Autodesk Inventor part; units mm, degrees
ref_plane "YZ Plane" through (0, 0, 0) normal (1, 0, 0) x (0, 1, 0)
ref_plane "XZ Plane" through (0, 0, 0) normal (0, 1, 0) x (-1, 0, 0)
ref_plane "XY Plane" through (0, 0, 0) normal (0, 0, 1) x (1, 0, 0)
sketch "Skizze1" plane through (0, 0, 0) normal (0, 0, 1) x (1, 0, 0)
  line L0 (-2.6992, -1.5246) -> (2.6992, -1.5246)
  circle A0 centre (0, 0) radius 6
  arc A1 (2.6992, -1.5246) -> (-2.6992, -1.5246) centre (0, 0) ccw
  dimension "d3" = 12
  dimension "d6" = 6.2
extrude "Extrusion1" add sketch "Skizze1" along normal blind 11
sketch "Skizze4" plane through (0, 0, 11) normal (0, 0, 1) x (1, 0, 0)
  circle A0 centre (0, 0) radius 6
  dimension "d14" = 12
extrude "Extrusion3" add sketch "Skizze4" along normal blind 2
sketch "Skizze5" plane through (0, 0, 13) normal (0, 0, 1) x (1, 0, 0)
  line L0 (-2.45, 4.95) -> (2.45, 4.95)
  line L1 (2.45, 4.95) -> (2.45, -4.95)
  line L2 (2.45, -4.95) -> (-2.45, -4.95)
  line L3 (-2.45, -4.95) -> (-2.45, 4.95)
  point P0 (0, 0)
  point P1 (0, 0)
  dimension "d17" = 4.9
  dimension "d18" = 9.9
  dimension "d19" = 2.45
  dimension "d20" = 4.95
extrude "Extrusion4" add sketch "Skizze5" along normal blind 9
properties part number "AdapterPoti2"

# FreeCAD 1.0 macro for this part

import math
import FreeCAD as App
import Part
import Sketcher
from FreeCAD import Vector
Q = App.Units.Quantity


def add_polygon(sketch, points):
    """Adds a closed chain of lines whose ends are joined by coincident constraints."""
    first, n = sketch.GeometryCount, len(points)
    for a, b in zip(points, points[1:] + points[:1]):
        sketch.addGeometry(Part.LineSegment(App.Vector(*a, 0), App.Vector(*b, 0)), False)
    for i in range(n):
        sketch.addConstraint(Sketcher.Constraint("Coincident", first + i, 2, first + (i + 1) % n, 1))

doc = App.newDocument("Part")
body = doc.addObject("PartDesign::Body", "Body")

# Sketch on XY plane
sketch1 = body.newObject("Sketcher::SketchObject", "Sketch")
sketch1.AttachmentSupport = (doc.getObject("XY_Plane"), [""])
sketch1.MapMode = "FlatFace"
sketch1.addGeometry(Part.Circle(Vector(0, 0, 0), Vector(0, 0, 1), 6), False)
sketch1.addGeometry(Part.LineSegment(Vector(2.7, -1.5, 0), Vector(-2.7, -1.5, 0)), False)
sketch1.addGeometry(Part.ArcOfCircle(Part.Circle(Vector(0, 0, 0), Vector(0, 0, 1), 3.1), math.radians(-29), math.radians(209)), False)
sketch1.addConstraint(Sketcher.Constraint("Coincident", 1, 1, 2, 1))
sketch1.addConstraint(Sketcher.Constraint("Coincident", 2, 2, 1, 2))
sketch1.addConstraint(Sketcher.Constraint("Horizontal", 1))
sketch1.addConstraint(Sketcher.Constraint("Coincident", 0, 3, -1, 1))
sketch1.addConstraint(Sketcher.Constraint("Coincident", 2, 3, -1, 1))
sketch1.addConstraint(Sketcher.Constraint("Diameter", 0, Q("12 mm")))
sketch1.addConstraint(Sketcher.Constraint("Radius", 2, Q("3.1 mm")))
sketch1.addConstraint(Sketcher.Constraint("DistanceX", 1, 2, 1, 1, Q("5.3984 mm")))
pad1 = body.newObject("PartDesign::Pad", "Pad")
pad1.Profile = sketch1
pad1.Length = 11

# Sketch on XY plane
sketch2 = body.newObject("Sketcher::SketchObject", "Sketch001")
sketch2.AttachmentSupport = (doc.getObject("XY_Plane"), [""])
sketch2.MapMode = "FlatFace"
sketch2.AttachmentOffset = App.Placement(Vector(0, 0, 11), App.Rotation())
sketch2.addGeometry(Part.Circle(Vector(0, 0, 0), Vector(0, 0, 1), 6), False)
sketch2.addConstraint(Sketcher.Constraint("Coincident", 0, 3, -1, 1))
sketch2.addConstraint(Sketcher.Constraint("Diameter", 0, Q("12 mm")))
pad2 = body.newObject("PartDesign::Pad", "Pad001")
pad2.Profile = sketch2
pad2.Length = 2

# Sketch on XY plane
sketch3 = body.newObject("Sketcher::SketchObject", "Sketch002")
sketch3.AttachmentSupport = (doc.getObject("XY_Plane"), [""])
sketch3.MapMode = "FlatFace"
sketch3.AttachmentOffset = App.Placement(Vector(0, 0, 13), App.Rotation())
add_polygon(sketch3, [(2.5, 5), (-2.5, 5), (-2.5, -5), (2.5, -5)])  # lines 0-3
sketch3.addConstraint(Sketcher.Constraint("Horizontal", 0))
sketch3.addConstraint(Sketcher.Constraint("Vertical", 1))
sketch3.addConstraint(Sketcher.Constraint("Horizontal", 2))
sketch3.addConstraint(Sketcher.Constraint("Vertical", 3))
sketch3.addConstraint(Sketcher.Constraint("Symmetric", 0, 2, 2, 2, -1, 1))
sketch3.addConstraint(Sketcher.Constraint("DistanceX", 0, 2, 0, 1, Q("4.9 mm")))
sketch3.addConstraint(Sketcher.Constraint("DistanceY", 1, 2, 1, 1, Q("9.9 mm")))
pad3 = body.newObject("PartDesign::Pad", "Pad002")
pad3.Profile = sketch3
pad3.Length = 9

doc.recompute()
